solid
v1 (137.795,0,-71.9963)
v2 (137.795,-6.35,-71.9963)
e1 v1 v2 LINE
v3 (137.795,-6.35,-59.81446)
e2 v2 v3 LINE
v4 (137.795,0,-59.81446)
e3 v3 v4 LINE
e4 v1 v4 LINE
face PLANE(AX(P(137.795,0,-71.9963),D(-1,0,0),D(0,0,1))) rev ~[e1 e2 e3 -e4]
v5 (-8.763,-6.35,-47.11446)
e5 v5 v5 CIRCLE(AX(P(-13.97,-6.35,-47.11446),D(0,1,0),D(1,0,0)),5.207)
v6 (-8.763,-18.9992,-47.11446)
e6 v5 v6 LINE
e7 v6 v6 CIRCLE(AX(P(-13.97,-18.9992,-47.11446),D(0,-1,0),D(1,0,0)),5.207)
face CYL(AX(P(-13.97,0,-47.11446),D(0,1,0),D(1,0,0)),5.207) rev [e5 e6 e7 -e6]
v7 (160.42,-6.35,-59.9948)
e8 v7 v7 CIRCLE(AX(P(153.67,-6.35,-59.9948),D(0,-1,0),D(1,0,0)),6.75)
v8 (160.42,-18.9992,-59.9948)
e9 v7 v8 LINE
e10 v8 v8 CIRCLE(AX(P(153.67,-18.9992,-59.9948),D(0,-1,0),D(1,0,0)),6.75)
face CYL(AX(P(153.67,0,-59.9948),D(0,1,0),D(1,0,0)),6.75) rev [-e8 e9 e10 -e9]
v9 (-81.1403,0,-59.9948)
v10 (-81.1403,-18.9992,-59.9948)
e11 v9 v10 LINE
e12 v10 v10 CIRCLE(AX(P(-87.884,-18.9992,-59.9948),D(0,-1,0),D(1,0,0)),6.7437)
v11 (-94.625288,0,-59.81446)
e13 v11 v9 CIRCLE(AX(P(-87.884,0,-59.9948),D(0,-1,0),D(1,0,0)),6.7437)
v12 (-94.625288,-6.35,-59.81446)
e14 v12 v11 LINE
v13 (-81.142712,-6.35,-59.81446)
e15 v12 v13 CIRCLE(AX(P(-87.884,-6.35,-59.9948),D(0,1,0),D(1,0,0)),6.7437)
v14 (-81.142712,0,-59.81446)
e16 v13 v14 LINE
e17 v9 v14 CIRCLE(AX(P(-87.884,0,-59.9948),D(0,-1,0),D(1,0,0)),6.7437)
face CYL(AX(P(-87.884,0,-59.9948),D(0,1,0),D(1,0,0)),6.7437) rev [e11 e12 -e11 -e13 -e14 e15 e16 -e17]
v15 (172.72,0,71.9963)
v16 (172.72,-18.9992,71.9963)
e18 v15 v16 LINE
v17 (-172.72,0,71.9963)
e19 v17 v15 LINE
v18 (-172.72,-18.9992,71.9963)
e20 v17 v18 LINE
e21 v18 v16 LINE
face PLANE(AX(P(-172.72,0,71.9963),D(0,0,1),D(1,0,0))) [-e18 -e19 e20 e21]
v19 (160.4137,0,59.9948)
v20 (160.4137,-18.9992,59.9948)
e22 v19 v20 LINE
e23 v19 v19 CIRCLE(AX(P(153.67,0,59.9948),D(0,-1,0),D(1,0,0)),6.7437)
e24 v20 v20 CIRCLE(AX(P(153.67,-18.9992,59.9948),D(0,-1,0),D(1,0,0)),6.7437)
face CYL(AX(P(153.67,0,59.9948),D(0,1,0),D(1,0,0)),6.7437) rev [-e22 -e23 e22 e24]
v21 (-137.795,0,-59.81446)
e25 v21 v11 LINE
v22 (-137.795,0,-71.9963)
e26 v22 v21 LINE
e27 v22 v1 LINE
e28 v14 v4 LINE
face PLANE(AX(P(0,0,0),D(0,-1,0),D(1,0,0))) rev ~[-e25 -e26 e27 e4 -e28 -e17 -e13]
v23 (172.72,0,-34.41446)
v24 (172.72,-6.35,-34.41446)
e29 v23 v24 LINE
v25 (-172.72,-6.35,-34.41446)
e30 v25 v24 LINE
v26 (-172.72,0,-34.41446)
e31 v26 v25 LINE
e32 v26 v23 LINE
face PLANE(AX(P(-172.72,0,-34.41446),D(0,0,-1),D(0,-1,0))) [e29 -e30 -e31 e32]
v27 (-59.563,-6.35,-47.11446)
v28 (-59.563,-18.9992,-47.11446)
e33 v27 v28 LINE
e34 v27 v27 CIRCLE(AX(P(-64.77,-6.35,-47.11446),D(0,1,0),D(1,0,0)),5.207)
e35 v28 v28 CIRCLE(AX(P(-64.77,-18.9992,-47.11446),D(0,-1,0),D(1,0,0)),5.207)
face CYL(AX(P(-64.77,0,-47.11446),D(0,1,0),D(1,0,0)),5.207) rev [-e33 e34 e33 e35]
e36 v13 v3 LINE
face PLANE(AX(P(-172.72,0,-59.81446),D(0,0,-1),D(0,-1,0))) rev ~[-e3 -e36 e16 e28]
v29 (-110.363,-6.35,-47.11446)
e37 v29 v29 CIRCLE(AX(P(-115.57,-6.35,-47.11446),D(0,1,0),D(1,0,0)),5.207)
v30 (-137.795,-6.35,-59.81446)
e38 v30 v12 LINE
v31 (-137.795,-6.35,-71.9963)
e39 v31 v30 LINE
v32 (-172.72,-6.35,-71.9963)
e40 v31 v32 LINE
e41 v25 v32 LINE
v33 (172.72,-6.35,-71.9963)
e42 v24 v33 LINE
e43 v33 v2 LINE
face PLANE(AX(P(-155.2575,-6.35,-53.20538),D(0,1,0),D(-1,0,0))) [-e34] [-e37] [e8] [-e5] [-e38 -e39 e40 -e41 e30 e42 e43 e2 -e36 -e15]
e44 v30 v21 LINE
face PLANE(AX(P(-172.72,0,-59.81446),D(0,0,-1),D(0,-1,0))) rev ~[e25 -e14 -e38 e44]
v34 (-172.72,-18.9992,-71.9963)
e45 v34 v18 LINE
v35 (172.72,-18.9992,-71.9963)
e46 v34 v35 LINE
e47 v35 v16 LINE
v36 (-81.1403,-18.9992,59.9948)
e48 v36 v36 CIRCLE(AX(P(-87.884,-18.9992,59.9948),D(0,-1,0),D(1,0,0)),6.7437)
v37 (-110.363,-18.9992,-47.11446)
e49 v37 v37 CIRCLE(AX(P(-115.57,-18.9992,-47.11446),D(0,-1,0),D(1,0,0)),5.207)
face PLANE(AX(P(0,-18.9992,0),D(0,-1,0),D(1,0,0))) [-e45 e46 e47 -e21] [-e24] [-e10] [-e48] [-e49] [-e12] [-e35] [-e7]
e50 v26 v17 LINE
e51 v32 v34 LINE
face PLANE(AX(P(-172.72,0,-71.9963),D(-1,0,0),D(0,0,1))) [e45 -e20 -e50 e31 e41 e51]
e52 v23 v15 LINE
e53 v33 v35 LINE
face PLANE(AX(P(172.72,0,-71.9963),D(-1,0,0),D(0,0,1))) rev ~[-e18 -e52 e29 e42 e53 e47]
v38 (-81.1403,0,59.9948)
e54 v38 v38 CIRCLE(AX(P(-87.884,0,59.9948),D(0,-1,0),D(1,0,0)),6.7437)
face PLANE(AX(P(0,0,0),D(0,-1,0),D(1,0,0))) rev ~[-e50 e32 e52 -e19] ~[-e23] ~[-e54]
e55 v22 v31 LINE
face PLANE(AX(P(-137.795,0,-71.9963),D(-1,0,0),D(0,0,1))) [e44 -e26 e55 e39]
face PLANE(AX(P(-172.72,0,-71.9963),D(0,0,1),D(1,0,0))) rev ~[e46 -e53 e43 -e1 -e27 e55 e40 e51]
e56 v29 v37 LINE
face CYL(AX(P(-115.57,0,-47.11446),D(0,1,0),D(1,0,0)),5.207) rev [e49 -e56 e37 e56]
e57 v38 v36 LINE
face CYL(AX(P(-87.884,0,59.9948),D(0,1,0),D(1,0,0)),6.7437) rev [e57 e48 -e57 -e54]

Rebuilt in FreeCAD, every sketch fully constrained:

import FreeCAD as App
import Part
import Sketcher
from FreeCAD import Vector
Q = App.Units.Quantity


def add_polygon(sketch, points):
    """Adds a closed chain of lines whose ends are joined by coincident constraints."""
    first, n = sketch.GeometryCount, len(points)
    for a, b in zip(points, points[1:] + points[:1]):
        sketch.addGeometry(Part.LineSegment(App.Vector(*a, 0), App.Vector(*b, 0)), False)
    for i in range(n):
        sketch.addConstraint(Sketcher.Constraint("Coincident", first + i, 2, first + (i + 1) % n, 1))

doc = App.newDocument("Part")
body = doc.addObject("PartDesign::Body", "Body")

# Sketch on XZ plane
sketch1 = body.newObject("Sketcher::SketchObject", "Sketch")
sketch1.AttachmentSupport = (doc.getObject("XZ_Plane"), [""])
sketch1.MapMode = "FlatFace"
add_polygon(sketch1, [(-172.72, 71.9963), (-172.72, -71.9963), (172.72, -71.9963), (172.72, 71.9963)])  # lines 0-3
sketch1.addGeometry(Part.Circle(Vector(-87.884, -59.9948, 0), Vector(0, 0, 1), 6.7437), False)  # 4
sketch1.addGeometry(Part.Circle(Vector(-115.57, -47.11446, 0), Vector(0, 0, 1), 5.207), False)  # 5
sketch1.addGeometry(Part.Circle(Vector(-64.77, -47.11446, 0), Vector(0, 0, 1), 5.207), False)  # 6
sketch1.addGeometry(Part.Circle(Vector(-13.97, -47.11446, 0), Vector(0, 0, 1), 5.207), False)  # 7
sketch1.addGeometry(Part.Circle(Vector(153.67, -59.9948, 0), Vector(0, 0, 1), 6.75), False)  # 8
sketch1.addGeometry(Part.Circle(Vector(-87.884, 59.9948, 0), Vector(0, 0, 1), 6.7437), False)  # 9
sketch1.addGeometry(Part.Circle(Vector(153.67, 59.9948, 0), Vector(0, 0, 1), 6.7437), False)  # 10
sketch1.addConstraint(Sketcher.Constraint("Vertical", 0))
sketch1.addConstraint(Sketcher.Constraint("Horizontal", 1))
sketch1.addConstraint(Sketcher.Constraint("Vertical", 2))
sketch1.addConstraint(Sketcher.Constraint("Horizontal", 3))
sketch1.addConstraint(Sketcher.Constraint("Equal", 5, 6))
sketch1.addConstraint(Sketcher.Constraint("Equal", 6, 7))
sketch1.addConstraint(Sketcher.Constraint("Equal", 4, 9))
sketch1.addConstraint(Sketcher.Constraint("Equal", 9, 10))
sketch1.addConstraint(Sketcher.Constraint("Symmetric", 0, 2, 2, 2, -1, 1))
sketch1.addConstraint(Sketcher.Constraint("Symmetric", 4, 3, 9, 3, -1))
sketch1.addConstraint(Sketcher.Constraint("Symmetric", 8, 3, 10, 3, -1))
sketch1.addConstraint(Sketcher.Constraint("Horizontal", 5, 3, 6, 3))
sketch1.addConstraint(Sketcher.Constraint("Horizontal", 6, 3, 7, 3))
sketch1.addConstraint(Sketcher.Constraint("Horizontal", 4, 3, 8, 3))
sketch1.addConstraint(Sketcher.Constraint("Diameter", 5, Q("0.41 in")))
sketch1.addConstraint(Sketcher.Constraint("Diameter", 4, Q("0.531 in")))
sketch1.addConstraint(Sketcher.Constraint("DistanceX", 1, 1, 1, 2, Q("13.6 in")))
sketch1.addConstraint(Sketcher.Constraint("DistanceX", 5, 3, 6, 3, Q("2 in")))
sketch1.addConstraint(Sketcher.Constraint("DistanceX", 6, 3, 7, 3, Q("2 in")))
sketch1.addConstraint(Sketcher.Constraint("DistanceX", 7, 3, 8, 3, Q("6.6 in")))
sketch1.addConstraint(Sketcher.Constraint("Diameter", 8, 13.5))
sketch1.addConstraint(Sketcher.Constraint("DistanceY", 0, 2, 0, 1, Q("5.669 in")))
sketch1.addConstraint(Sketcher.Constraint("DistanceX", 4, 3, -1, 1, Q("3.46 in")))
sketch1.addConstraint(Sketcher.Constraint("DistanceX", 5, 3, -1, 1, Q("4.55 in")))
sketch1.addConstraint(Sketcher.Constraint("DistanceY", 4, 3, -1, 1, Q("2.362 in")))
sketch1.addConstraint(Sketcher.Constraint("DistanceY", 5, 3, -1, 1, Q("1.8549 in")))
pad1 = body.newObject("PartDesign::Pad", "Pad")
pad1.Profile = sketch1
pad1.Length = Q("0.748 in")

# Sketch on YZ plane
sketch2 = body.newObject("Sketcher::SketchObject", "Sketch001")
sketch2.AttachmentSupport = (doc.getObject("YZ_Plane"), [""])
sketch2.MapMode = "FlatFace"
sketch2.AttachmentOffset = App.Placement(Vector(0, 0, -6.8 * 25.4), App.Rotation())
add_polygon(sketch2, [(0, -34.41446), (0, -59.81446), (-6.35, -59.81446), (-6.35, -34.41446)])  # lines 0-3
sketch2.addConstraint(Sketcher.Constraint("Vertical", 0))
sketch2.addConstraint(Sketcher.Constraint("Horizontal", 1))
sketch2.addConstraint(Sketcher.Constraint("Vertical", 2))
sketch2.addConstraint(Sketcher.Constraint("Horizontal", 3))
sketch2.addConstraint(Sketcher.Constraint("PointOnObject", 0, 2, -2))
sketch2.addConstraint(Sketcher.Constraint("DistanceY", 0, 2, 0, 1, Q("1 in")))
sketch2.addConstraint(Sketcher.Constraint("DistanceX", 1, 2, 1, 1, Q("0.25 in")))
sketch2.addConstraint(Sketcher.Constraint("DistanceY", 0, 2, -1, 1, Q("2.3549 in")))
pocket1 = body.newObject("PartDesign::Pocket", "Pocket")
pocket1.Profile = sketch2
pocket1.Type = "ThroughAll"
pocket1.Reversed = True

# Sketch on XZ plane
sketch3 = body.newObject("Sketcher::SketchObject", "Sketch002")
sketch3.AttachmentSupport = (doc.getObject("XZ_Plane"), [""])
sketch3.MapMode = "FlatFace"
add_polygon(sketch3, [(172.72, -34.41446), (172.72, -71.9963), (137.795, -71.9963), (137.795, -34.41446)])  # lines 0-3
add_polygon(sketch3, [(-137.795, -34.41446), (-137.795, -71.9963), (-172.72, -71.9963), (-172.72, -34.41446)])  # lines 4-7
sketch3.addConstraint(Sketcher.Constraint("Vertical", 0))
sketch3.addConstraint(Sketcher.Constraint("Horizontal", 1))
sketch3.addConstraint(Sketcher.Constraint("Vertical", 2))
sketch3.addConstraint(Sketcher.Constraint("Horizontal", 3))
sketch3.addConstraint(Sketcher.Constraint("Vertical", 4))
sketch3.addConstraint(Sketcher.Constraint("Horizontal", 5))
sketch3.addConstraint(Sketcher.Constraint("Vertical", 6))
sketch3.addConstraint(Sketcher.Constraint("Horizontal", 7))
sketch3.addConstraint(Sketcher.Constraint("Symmetric", 1, 2, 4, 2, -2))
sketch3.addConstraint(Sketcher.Constraint("Symmetric", 3, 2, 6, 2, -2))
sketch3.addConstraint(Sketcher.Constraint("DistanceX", -1, 1, 0, 2, Q("6.8 in")))
sketch3.addConstraint(Sketcher.Constraint("DistanceX", 1, 2, 1, 1, Q("1.375 in")))
sketch3.addConstraint(Sketcher.Constraint("DistanceY", 0, 2, 0, 1, Q("1.4796 in")))
sketch3.addConstraint(Sketcher.Constraint("DistanceY", 0, 2, -1, 1, Q("2.8345 in")))
pocket2 = body.newObject("PartDesign::Pocket", "Pocket001")
pocket2.Profile = sketch3
pocket2.Length = Q("0.25 in")
pocket2.Reversed = True

doc.recompute()
